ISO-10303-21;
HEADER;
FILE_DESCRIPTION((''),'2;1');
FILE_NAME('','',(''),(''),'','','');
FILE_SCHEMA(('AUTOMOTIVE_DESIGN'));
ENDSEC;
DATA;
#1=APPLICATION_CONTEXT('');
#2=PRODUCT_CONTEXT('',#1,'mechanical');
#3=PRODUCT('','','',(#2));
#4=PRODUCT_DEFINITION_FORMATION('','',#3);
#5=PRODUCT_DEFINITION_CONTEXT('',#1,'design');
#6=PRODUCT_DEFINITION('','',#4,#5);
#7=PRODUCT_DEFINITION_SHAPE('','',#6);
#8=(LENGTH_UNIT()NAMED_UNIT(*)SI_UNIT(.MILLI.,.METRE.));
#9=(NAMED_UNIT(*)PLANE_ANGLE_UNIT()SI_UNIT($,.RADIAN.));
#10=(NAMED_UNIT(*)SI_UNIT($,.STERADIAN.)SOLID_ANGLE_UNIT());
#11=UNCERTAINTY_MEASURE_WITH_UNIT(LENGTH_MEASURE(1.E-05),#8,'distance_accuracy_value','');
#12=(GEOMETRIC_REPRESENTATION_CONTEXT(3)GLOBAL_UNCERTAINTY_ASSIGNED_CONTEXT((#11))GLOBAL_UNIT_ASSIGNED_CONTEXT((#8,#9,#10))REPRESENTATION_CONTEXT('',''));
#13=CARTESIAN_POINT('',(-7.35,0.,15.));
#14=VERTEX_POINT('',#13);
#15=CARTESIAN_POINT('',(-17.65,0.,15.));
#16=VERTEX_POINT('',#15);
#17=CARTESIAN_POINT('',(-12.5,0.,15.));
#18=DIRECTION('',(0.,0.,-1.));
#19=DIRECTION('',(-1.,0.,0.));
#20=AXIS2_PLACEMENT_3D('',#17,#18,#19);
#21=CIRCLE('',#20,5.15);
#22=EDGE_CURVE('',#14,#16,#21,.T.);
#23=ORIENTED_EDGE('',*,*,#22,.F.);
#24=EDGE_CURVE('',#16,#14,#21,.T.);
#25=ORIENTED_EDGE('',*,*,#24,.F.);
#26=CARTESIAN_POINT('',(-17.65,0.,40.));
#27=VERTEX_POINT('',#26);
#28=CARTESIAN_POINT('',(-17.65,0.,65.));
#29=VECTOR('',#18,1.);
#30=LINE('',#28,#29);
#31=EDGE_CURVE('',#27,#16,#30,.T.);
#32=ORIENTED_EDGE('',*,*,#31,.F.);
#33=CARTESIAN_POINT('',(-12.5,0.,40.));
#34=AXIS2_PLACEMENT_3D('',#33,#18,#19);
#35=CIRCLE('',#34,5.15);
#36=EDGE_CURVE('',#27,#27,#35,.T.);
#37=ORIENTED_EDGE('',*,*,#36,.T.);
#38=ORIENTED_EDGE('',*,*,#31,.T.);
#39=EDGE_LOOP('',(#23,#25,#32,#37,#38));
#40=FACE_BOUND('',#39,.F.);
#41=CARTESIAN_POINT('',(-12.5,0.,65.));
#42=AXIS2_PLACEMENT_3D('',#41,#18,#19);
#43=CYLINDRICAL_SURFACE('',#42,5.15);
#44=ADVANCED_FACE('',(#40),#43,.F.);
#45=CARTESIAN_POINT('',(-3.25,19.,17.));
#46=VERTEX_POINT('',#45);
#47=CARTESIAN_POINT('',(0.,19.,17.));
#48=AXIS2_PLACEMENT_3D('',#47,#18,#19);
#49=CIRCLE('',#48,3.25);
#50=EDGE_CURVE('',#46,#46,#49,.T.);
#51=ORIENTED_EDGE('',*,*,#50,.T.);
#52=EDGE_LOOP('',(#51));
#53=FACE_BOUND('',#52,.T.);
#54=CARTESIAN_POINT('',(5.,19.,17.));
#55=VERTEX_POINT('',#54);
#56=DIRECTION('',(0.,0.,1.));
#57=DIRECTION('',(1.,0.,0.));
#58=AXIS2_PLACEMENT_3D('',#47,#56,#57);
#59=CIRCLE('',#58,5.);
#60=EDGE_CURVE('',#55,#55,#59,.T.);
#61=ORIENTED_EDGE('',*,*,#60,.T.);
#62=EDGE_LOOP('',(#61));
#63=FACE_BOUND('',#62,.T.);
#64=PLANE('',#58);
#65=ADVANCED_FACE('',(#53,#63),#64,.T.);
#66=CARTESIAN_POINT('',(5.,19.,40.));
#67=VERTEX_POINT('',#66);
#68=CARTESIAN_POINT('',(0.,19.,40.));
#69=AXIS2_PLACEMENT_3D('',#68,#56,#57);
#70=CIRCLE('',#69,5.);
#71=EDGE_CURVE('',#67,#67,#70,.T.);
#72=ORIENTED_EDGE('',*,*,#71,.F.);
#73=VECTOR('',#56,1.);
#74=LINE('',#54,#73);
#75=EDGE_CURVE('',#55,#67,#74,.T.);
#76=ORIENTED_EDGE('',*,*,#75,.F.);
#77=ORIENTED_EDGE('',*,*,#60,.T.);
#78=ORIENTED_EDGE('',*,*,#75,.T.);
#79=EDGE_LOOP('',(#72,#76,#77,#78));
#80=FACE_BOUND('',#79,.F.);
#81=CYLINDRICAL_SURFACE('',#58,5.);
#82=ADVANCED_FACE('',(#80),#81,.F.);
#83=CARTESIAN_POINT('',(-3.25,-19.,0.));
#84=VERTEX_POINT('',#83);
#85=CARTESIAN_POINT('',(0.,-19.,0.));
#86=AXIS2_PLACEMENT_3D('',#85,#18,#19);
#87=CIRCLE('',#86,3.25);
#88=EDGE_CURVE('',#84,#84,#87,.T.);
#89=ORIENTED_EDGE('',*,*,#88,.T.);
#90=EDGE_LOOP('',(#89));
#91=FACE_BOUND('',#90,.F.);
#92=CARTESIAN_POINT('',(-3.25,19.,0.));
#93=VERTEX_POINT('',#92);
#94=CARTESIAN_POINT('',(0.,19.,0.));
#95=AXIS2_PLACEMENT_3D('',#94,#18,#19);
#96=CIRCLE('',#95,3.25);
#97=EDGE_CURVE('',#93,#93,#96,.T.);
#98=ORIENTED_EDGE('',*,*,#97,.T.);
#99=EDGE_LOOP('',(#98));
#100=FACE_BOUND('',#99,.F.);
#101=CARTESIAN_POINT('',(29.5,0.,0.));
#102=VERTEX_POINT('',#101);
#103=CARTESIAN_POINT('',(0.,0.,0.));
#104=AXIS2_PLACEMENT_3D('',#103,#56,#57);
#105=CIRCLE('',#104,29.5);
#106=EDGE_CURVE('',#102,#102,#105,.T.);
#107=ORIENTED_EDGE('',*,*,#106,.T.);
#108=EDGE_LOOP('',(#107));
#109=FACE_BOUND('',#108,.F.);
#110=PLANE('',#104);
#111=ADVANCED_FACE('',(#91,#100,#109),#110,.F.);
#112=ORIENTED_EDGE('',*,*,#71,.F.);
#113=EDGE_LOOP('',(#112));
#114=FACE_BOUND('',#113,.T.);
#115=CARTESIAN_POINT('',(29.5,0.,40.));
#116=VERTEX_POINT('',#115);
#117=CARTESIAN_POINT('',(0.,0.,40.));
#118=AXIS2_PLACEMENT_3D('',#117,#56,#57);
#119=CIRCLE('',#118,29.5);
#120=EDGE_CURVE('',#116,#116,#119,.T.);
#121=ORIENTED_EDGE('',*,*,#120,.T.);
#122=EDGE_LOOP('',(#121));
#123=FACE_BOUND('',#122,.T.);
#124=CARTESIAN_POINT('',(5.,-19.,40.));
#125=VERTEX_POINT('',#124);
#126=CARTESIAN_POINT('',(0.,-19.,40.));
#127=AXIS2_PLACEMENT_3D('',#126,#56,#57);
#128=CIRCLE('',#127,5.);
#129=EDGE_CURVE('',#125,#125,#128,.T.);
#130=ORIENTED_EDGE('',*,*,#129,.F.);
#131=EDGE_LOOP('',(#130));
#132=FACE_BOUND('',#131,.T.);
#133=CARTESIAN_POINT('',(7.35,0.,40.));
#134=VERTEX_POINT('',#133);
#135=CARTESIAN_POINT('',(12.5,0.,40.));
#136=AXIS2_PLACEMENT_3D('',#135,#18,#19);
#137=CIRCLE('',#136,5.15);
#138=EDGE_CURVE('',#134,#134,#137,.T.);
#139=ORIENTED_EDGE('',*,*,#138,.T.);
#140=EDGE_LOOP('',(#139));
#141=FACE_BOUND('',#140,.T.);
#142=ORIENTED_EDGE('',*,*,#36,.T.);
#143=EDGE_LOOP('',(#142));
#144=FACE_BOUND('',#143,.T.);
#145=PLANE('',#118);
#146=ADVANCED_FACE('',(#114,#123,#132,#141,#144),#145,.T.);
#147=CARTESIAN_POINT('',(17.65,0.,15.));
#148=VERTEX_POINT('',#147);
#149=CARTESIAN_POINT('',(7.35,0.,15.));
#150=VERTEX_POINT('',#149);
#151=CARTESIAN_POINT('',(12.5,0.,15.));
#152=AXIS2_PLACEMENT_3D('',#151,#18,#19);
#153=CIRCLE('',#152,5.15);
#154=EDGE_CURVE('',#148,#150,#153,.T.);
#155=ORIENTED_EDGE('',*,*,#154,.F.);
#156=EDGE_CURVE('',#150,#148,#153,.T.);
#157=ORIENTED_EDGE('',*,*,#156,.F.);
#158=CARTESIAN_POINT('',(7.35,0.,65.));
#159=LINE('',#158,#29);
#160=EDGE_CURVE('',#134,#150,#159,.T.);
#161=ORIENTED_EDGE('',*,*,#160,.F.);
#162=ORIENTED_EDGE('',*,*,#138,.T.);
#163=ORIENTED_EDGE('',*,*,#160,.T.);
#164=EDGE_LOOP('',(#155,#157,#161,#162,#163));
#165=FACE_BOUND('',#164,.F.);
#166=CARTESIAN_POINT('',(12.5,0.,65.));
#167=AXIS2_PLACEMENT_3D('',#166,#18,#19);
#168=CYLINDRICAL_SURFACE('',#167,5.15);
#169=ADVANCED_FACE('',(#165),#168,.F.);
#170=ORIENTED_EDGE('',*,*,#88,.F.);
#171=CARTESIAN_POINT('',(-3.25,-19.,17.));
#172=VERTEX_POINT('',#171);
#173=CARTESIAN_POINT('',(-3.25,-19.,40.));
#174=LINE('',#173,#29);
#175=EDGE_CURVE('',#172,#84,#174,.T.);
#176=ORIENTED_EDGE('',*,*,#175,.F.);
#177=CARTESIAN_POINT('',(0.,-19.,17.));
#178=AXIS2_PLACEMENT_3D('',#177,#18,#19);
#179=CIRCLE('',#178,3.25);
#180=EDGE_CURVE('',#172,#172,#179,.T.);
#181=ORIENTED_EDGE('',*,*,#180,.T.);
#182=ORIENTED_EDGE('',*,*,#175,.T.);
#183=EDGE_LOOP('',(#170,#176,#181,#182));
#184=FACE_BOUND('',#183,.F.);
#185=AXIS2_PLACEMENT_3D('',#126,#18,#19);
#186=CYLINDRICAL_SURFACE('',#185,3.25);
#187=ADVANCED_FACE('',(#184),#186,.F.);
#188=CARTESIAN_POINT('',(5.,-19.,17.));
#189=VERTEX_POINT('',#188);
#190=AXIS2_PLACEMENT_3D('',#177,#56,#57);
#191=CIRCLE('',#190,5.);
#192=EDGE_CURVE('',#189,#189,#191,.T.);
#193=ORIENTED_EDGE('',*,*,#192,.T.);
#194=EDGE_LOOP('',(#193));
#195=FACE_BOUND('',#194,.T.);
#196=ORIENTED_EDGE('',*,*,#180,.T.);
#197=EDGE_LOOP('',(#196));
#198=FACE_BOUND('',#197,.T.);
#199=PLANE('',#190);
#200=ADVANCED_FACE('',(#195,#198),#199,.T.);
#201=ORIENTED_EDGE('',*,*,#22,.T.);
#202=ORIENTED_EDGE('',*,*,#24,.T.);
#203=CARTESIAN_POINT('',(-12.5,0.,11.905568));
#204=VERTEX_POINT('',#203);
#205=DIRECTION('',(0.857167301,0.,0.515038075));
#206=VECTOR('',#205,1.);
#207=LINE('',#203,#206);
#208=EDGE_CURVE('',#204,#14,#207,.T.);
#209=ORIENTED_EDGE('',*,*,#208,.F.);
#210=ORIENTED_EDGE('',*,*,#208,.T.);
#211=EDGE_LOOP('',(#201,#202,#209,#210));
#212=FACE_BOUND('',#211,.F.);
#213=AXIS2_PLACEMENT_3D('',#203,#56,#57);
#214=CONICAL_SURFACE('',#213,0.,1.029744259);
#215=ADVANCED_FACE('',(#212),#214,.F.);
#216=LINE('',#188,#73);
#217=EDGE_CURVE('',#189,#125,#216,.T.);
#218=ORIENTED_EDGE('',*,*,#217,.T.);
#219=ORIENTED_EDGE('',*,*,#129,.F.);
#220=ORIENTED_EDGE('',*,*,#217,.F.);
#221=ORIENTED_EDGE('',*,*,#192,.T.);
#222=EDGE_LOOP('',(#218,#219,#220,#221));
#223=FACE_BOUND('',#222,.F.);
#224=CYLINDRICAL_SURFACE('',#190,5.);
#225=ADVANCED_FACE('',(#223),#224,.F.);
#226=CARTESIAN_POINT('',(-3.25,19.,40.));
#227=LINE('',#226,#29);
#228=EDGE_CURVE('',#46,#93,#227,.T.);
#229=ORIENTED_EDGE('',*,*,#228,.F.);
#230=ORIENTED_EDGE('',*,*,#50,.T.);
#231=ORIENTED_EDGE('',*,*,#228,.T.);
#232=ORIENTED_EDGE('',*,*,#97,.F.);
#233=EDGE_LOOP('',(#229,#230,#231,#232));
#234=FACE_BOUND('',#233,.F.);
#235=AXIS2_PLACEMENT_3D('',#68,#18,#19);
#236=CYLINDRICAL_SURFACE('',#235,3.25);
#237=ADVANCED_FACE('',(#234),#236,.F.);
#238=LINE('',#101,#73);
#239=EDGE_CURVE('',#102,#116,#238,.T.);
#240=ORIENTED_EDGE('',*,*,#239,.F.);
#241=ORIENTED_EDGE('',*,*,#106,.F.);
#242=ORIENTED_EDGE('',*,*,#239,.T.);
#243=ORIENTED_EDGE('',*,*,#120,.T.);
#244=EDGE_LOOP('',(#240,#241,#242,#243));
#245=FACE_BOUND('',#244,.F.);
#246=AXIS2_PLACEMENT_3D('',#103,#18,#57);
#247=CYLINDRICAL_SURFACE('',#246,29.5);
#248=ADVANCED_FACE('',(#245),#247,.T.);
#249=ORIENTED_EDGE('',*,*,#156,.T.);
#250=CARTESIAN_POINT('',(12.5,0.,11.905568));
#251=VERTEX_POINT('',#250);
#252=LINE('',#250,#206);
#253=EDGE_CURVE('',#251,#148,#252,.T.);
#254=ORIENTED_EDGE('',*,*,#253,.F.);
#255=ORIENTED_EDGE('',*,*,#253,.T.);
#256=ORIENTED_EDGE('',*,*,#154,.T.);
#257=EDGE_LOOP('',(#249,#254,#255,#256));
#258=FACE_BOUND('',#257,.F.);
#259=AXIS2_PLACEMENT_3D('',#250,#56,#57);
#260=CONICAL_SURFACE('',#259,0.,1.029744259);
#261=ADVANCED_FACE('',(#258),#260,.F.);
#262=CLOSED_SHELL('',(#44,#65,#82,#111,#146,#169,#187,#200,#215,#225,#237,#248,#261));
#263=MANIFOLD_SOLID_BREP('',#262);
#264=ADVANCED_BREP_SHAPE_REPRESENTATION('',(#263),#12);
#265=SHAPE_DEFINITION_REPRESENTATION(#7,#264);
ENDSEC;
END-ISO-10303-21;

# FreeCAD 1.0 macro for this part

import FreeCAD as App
import Part
import Sketcher

V = App.Vector
Q = App.Units.Quantity

doc = App.newDocument("Part")
body = doc.addObject("PartDesign::Body", "Body")

# Sketch on XY plane
sketch1 = body.newObject("Sketcher::SketchObject", "Sketch")
sketch1.AttachmentSupport = (doc.getObject("XY_Plane"), [""])
sketch1.MapMode = "FlatFace"
sketch1.addGeometry(Part.Circle(V(0, 0, 0), V(0, 0, 1), 30), False)
sketch1.addConstraint([
    Sketcher.Constraint("Coincident", 0, 3, -1, 1),
    Sketcher.Constraint("Diameter", 0, Q("59 mm")),
])
pad1 = body.newObject("PartDesign::Pad", "Pad")
pad1.Profile = sketch1
pad1.Length = 40

# Sketch on XY plane
sketch2 = body.newObject("Sketcher::SketchObject", "Sketch001")
sketch2.AttachmentSupport = (doc.getObject("XY_Plane"), [""])
sketch2.MapMode = "FlatFace"
sketch2.AttachmentOffset = App.Placement(V(0, 0, 40), App.Rotation())
sketch2.addGeometry([
    Part.Circle(V(-12, 0, 0), V(0, 0, 1), 5),
    Part.Circle(V(12, 0, 0), V(0, 0, 1), 5),
], False)
sketch2.addConstraint([
    Sketcher.Constraint("Equal", 0, 1),
    Sketcher.Constraint("Symmetric", 0, 3, 1, 3, -1, 1),
    Sketcher.Constraint("PointOnObject", 0, 3, -1),
    Sketcher.Constraint("Diameter", 0, Q("10.3 mm")),
    Sketcher.Constraint("DistanceX", 0, 3, 1, 3, Q("25 mm")),
])
doc.recompute()
hole = body.newObject("PartDesign::Hole", "Hole")
hole.Profile = sketch2
hole.ThreadType = "None"
hole.Diameter = 10.3
hole.DepthType = "Dimension"
hole.Depth = 25
hole.DrillPoint = "Angled"
hole.DrillPointAngle = 118

# Sketch on XY plane
sketch3 = body.newObject("Sketcher::SketchObject", "Sketch002")
sketch3.AttachmentSupport = (doc.getObject("XY_Plane"), [""])
sketch3.MapMode = "FlatFace"
sketch3.AttachmentOffset = App.Placement(V(0, 0, 40), App.Rotation())
sketch3.addGeometry([
    Part.Circle(V(0, 19, 0), V(0, 0, 1), 3.2),
    Part.Circle(V(0, -19, 0), V(0, 0, 1), 3.2),
], False)
sketch3.addConstraint([
    Sketcher.Constraint("Equal", 0, 1),
    Sketcher.Constraint("Symmetric", 0, 3, 1, 3, -1, 1),
    Sketcher.Constraint("PointOnObject", 0, 3, -2),
    Sketcher.Constraint("Diameter", 0, Q("6.5 mm")),
    Sketcher.Constraint("DistanceY", -1, 1, 0, 3, Q("19 mm")),
])
doc.recompute()
hole2 = body.newObject("PartDesign::Hole", "Hole001")
hole2.Profile = sketch3
hole2.ThreadType = "None"
hole2.Diameter = 6.5
hole2.DepthType = "ThroughAll"
hole2.HoleCutType = "Counterbore"
hole2.HoleCutDiameter = 10
hole2.HoleCutDepth = 23

doc.recompute()
